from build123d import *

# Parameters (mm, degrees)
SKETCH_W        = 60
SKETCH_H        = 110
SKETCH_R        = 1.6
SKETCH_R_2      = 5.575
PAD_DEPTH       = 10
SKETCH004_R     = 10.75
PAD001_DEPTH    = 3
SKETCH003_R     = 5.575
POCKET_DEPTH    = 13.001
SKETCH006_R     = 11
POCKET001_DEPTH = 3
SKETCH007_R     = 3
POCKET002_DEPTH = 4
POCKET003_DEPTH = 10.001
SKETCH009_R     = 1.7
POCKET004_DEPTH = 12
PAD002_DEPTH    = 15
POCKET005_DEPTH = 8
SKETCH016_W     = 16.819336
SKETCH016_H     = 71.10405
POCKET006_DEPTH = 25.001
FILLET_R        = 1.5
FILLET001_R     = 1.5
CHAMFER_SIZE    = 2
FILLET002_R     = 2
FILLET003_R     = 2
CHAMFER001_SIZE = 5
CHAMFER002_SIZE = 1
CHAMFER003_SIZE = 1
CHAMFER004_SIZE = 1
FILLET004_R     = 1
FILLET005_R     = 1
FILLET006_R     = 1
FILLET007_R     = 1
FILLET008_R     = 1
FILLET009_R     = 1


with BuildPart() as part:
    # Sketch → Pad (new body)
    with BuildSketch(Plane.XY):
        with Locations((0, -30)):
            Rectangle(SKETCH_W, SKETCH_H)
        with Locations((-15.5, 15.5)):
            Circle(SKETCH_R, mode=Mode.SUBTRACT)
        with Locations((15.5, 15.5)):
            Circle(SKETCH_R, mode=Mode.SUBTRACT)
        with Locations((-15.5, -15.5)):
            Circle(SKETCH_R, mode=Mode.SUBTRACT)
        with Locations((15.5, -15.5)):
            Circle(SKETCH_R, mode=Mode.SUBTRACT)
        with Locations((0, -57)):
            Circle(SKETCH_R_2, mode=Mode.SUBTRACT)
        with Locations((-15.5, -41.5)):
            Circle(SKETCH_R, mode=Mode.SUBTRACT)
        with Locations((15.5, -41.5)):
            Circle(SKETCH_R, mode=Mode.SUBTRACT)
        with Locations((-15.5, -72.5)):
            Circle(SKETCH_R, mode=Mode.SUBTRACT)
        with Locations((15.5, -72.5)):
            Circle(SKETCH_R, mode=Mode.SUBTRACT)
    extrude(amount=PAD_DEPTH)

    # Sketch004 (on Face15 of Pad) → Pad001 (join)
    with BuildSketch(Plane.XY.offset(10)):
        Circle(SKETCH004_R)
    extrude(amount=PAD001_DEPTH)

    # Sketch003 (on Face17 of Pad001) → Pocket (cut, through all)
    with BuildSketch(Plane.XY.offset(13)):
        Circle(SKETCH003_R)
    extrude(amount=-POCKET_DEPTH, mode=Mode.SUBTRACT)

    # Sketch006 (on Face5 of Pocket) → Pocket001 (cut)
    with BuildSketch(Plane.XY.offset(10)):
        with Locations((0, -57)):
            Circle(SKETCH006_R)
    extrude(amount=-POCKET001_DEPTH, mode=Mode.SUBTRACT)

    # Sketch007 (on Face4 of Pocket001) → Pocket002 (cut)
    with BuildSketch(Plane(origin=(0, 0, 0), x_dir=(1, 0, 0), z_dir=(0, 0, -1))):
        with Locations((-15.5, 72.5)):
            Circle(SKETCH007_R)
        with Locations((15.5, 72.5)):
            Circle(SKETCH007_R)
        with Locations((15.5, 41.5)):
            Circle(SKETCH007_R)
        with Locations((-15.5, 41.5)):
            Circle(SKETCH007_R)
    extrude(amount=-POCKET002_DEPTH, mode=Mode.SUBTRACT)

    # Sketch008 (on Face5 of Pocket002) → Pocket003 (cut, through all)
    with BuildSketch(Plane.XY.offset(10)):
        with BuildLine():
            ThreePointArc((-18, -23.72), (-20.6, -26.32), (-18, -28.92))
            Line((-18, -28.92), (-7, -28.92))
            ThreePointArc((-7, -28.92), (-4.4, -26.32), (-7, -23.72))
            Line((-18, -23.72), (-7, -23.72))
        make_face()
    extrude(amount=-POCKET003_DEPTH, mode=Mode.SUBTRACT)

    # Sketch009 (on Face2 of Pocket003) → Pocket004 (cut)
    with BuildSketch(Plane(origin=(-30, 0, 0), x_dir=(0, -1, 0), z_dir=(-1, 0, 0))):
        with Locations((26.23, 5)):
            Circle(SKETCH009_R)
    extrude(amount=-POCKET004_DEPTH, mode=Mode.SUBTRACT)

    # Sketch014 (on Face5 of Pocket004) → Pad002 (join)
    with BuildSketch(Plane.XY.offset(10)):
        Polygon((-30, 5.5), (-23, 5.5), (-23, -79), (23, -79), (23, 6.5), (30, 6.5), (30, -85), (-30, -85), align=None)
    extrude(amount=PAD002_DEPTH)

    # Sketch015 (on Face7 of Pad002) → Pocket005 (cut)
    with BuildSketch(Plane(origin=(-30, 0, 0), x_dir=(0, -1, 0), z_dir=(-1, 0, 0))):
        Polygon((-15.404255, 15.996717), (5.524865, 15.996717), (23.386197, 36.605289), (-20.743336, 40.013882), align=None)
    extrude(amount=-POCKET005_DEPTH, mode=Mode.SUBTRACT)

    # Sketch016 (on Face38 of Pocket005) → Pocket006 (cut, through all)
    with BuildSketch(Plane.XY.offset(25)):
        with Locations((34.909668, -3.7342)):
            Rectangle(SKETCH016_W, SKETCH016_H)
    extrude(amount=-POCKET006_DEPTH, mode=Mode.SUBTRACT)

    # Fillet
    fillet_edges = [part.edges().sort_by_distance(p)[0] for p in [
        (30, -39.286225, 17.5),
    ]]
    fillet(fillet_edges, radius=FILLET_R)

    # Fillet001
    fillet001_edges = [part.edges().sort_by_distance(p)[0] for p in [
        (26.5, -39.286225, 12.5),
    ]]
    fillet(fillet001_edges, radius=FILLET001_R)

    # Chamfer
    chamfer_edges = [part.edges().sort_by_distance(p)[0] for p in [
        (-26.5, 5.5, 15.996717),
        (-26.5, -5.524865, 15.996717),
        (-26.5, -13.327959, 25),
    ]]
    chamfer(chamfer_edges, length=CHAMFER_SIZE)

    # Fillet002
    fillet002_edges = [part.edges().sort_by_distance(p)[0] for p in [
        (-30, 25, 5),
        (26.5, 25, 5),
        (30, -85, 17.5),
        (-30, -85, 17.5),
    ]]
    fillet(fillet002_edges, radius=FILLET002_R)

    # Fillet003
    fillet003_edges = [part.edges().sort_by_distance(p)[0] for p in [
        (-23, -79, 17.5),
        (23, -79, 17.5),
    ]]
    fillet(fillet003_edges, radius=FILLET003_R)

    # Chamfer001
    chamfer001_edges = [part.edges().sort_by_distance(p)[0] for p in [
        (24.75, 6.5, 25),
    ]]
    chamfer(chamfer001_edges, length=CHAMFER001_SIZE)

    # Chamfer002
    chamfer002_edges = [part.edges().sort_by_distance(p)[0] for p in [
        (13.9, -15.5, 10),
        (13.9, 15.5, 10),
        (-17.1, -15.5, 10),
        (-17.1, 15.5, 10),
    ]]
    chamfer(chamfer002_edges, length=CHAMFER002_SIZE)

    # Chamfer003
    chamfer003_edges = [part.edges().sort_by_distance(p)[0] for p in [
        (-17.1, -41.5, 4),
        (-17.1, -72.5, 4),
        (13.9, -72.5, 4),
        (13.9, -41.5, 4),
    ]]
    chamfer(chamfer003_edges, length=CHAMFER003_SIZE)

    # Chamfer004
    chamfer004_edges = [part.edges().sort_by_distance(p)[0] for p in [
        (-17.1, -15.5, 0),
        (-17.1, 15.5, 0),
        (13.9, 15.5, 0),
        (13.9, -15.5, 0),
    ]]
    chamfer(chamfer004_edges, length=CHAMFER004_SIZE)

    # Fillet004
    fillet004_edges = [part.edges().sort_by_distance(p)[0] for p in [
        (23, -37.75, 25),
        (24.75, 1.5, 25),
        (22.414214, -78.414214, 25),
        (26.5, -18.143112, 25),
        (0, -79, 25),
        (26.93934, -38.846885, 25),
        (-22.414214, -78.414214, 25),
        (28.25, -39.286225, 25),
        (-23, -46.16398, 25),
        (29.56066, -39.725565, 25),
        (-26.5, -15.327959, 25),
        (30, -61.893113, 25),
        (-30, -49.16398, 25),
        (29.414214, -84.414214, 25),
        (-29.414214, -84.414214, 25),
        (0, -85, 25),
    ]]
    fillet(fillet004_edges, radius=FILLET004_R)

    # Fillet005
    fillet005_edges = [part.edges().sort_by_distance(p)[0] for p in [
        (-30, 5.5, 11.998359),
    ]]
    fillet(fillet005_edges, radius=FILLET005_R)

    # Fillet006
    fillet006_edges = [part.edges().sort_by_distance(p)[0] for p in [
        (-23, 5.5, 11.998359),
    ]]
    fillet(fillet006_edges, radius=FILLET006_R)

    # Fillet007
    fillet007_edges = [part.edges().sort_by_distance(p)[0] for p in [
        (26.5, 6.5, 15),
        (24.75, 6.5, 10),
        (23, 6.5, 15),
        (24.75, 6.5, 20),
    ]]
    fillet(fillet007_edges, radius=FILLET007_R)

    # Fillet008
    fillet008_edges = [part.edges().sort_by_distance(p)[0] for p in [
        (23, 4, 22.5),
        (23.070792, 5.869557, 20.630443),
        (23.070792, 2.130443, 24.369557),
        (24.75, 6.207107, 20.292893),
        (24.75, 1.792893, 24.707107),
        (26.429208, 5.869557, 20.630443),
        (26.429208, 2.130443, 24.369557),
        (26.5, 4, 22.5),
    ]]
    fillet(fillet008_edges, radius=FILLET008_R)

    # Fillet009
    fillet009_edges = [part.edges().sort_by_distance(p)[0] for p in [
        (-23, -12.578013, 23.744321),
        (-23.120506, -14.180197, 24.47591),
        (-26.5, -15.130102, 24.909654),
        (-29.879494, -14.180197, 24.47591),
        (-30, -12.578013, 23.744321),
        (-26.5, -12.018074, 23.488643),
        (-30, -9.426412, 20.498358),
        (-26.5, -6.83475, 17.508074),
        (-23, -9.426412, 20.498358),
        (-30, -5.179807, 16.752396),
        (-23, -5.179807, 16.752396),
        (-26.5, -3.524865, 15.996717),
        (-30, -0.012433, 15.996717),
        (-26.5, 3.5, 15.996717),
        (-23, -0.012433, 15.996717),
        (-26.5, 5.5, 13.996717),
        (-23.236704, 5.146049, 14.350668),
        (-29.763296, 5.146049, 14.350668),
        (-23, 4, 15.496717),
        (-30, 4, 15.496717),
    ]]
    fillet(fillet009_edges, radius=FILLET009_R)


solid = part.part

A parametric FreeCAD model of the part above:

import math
import FreeCAD as App
import Part
import Sketcher

V = App.Vector
Q = App.Units.Quantity


def edges_at(feature, points):
    """Names of the edges that pass closest to the given points."""
    edges = feature.Shape.Edges
    near = lambda p: min(range(len(edges)), key=lambda i: edges[i].distToShape(Part.Vertex(*p))[0])
    return sorted({f"Edge{near(p) + 1}" for p in points})


def add_polygon(sketch, points):
    """Adds a closed chain of lines whose ends are joined by coincident constraints."""
    first, n = sketch.GeometryCount, len(points)
    for a, b in zip(points, points[1:] + points[:1]):
        sketch.addGeometry(Part.LineSegment(App.Vector(*a, 0), App.Vector(*b, 0)), False)
    for i in range(n):
        sketch.addConstraint(Sketcher.Constraint("Coincident", first + i, 2, first + (i + 1) % n, 1))

doc = App.newDocument("Part")
params = doc.addObject("Spreadsheet::Sheet", "Params")
for row, (alias, value) in enumerate([
    ("sketch1_diameter", "3.2 mm"),
    ("sketch1_diameter2", "11.15 mm"),
    ("sketch1_width", "60 mm"),
    ("sketch1_height", "110 mm"),
    ("pad1_length", "10 mm"),
    ("sketch2_diameter", "21.5 mm"),
    ("pad2_length", "3 mm"),
    ("sketch3_diameter", "11.15 mm"),
    ("sketch4_diameter", "22 mm"),
    ("pocket2_length", "3 mm"),
    ("sketch5_diameter", "6 mm"),
    ("pocket3_length", "4 mm"),
    ("sketch6_radius", "2.6 mm"),
    ("sketch6_width", "11 mm"),
    ("sketch7_diameter", "3.4 mm"),
    ("pocket5_length", "12 mm"),
    ("sketch8_width", "7 mm"),
    ("sketch8_width2", "60 mm"),
    ("sketch8_height", "90.5 mm"),
    ("sketch8_height2", "91.5 mm"),
    ("sketch8_height3", "85.5 mm"),
    ("pad3_length", "15 mm"),
    ("pocket6_length", "8 mm"),
    ("fillet_radius", "1.5 mm"),
    ("fillet2_radius", "1.5 mm"),
    ("chamfer_size", "2 mm"),
    ("fillet3_radius", "2 mm"),
    ("fillet4_radius", "2 mm"),
    ("chamfer2_size", "5 mm"),
    ("chamfer3_size", "1 mm"),
    ("chamfer4_size", "1 mm"),
    ("chamfer5_size", "1 mm"),
    ("fillet5_radius", "1 mm"),
    ("fillet6_radius", "1 mm"),
    ("fillet7_radius", "1 mm"),
    ("fillet8_radius", "1 mm"),
    ("fillet9_radius", "1 mm"),
    ("fillet10_radius", "1 mm"),
], start=1):
    params.set(f"A{row}", alias)
    params.set(f"B{row}", "=" + value)
    params.setAlias(f"B{row}", alias)

body = doc.addObject("PartDesign::Body", "Body")

sketch1 = doc.addObject("Sketcher::SketchObject", "Sketch")
body.addObject(sketch1)
sketch1.AttachmentSupport = (doc.XY_Plane, [""])
sketch1.MapMode = "FlatFace"
add_polygon(sketch1, [(-30, 25), (-30, -85), (30, -85), (30, 25)])
sketch1.addGeometry(Part.Circle(V(-15.5, -72.5, 0), V(0, 0, 1), 1.6), False)
sketch1.addGeometry(Part.Circle(V(-15.5, -41.5, 0), V(0, 0, 1), 1.6), False)
sketch1.addGeometry(Part.Circle(V(0, -57, 0), V(0, 0, 1), 5.575), False)
sketch1.addGeometry(Part.Circle(V(15.5, -72.5, 0), V(0, 0, 1), 1.6), False)
sketch1.addGeometry(Part.Circle(V(15.5, -41.5, 0), V(0, 0, 1), 1.6), False)
sketch1.addGeometry(Part.Circle(V(-15.5, -15.5, 0), V(0, 0, 1), 1.6), False)
sketch1.addGeometry(Part.Circle(V(-15.5, 15.5, 0), V(0, 0, 1), 1.6), False)
sketch1.addGeometry(Part.Circle(V(15.5, -15.5, 0), V(0, 0, 1), 1.6), False)
sketch1.addGeometry(Part.Circle(V(15.5, 15.5, 0), V(0, 0, 1), 1.6), False)
sketch1.addConstraint([
    Sketcher.Constraint("Vertical", 0),
    Sketcher.Constraint("Horizontal", 1),
    Sketcher.Constraint("Vertical", 2),
    Sketcher.Constraint("Horizontal", 3),
    Sketcher.Constraint("Equal", 4, 5),
    Sketcher.Constraint("Equal", 5, 7),
    Sketcher.Constraint("Equal", 7, 8),
    Sketcher.Constraint("Equal", 8, 9),
    Sketcher.Constraint("Equal", 9, 10),
    Sketcher.Constraint("Equal", 10, 11),
    Sketcher.Constraint("Equal", 11, 12),
    Sketcher.Constraint("Symmetric", 10, 3, 11, 3, -1, 1),
    Sketcher.Constraint("Symmetric", 9, 3, 12, 3, -1, 1),
    Sketcher.Constraint("Symmetric", 4, 3, 7, 3, -2),
    Sketcher.Constraint("Symmetric", 5, 3, 8, 3, -2),
    Sketcher.Constraint("Symmetric", 9, 3, 11, 3, -2),
    Sketcher.Constraint("PointOnObject", 6, 3, -2),
    Sketcher.Constraint("Vertical", 4, 3, 5, 3),
    Sketcher.Constraint("Vertical", 5, 3, 9, 3),
    Sketcher.Constraint("Diameter", 4, Q("3.2 mm")),
    Sketcher.Constraint("Diameter", 6, Q("11.15 mm")),
    Sketcher.Constraint("DistanceX", 1, 1, 1, 2, Q("60 mm")),
    Sketcher.Constraint("DistanceY", 0, 2, 0, 1, Q("110 mm")),
    Sketcher.Constraint("DistanceY", 6, 3, -1, 1, Q("57 mm")),
    Sketcher.Constraint("DistanceX", 0, 2, -1, 1, Q("30 mm")),
    Sketcher.Constraint("DistanceY", 0, 2, -1, 1, Q("85 mm")),
    Sketcher.Constraint("DistanceY", 4, 3, 5, 3, Q("31 mm")),
    Sketcher.Constraint("DistanceX", 4, 3, 7, 3, Q("31 mm")),
    Sketcher.Constraint("DistanceY", 5, 3, 9, 3, Q("26 mm")),
    Sketcher.Constraint("DistanceY", 9, 3, 10, 3, Q("31 mm")),
])
sketch1.setExpression("Constraints[23]", "Params.sketch1_diameter")
sketch1.setExpression("Constraints[24]", "Params.sketch1_diameter2")
sketch1.setExpression("Constraints[25]", "Params.sketch1_width")
sketch1.setExpression("Constraints[26]", "Params.sketch1_height")
pad1 = doc.addObject("PartDesign::Pad", "Pad")
body.addObject(pad1)
pad1.Profile = sketch1
pad1.setExpression("Length", "Params.pad1_length")

sketch2 = doc.addObject("Sketcher::SketchObject", "Sketch001")
body.addObject(sketch2)
sketch2.AttachmentSupport = (doc.XY_Plane, [""])
sketch2.MapMode = "FlatFace"
sketch2.AttachmentOffset = App.Placement(V(0, 0, 10), App.Rotation())
sketch2.addGeometry(Part.Circle(V(0, 0, 0), V(0, 0, 1), 10.75), False)
sketch2.addConstraint([
    Sketcher.Constraint("Coincident", 0, 3, -1, 1),
    Sketcher.Constraint("Diameter", 0, Q("21.5 mm")),
])
sketch2.setExpression("Constraints[1]", "Params.sketch2_diameter")
pad2 = doc.addObject("PartDesign::Pad", "Pad001")
body.addObject(pad2)
pad2.Profile = sketch2
pad2.setExpression("Length", "Params.pad2_length")

sketch3 = doc.addObject("Sketcher::SketchObject", "Sketch002")
body.addObject(sketch3)
sketch3.AttachmentSupport = (doc.XY_Plane, [""])
sketch3.MapMode = "FlatFace"
sketch3.AttachmentOffset = App.Placement(V(0, 0, 13), App.Rotation())
sketch3.addGeometry(Part.Circle(V(0, 0, 0), V(0, 0, 1), 5.575), False)
sketch3.addConstraint([
    Sketcher.Constraint("Coincident", 0, 3, -1, 1),
    Sketcher.Constraint("Diameter", 0, Q("11.15 mm")),
])
sketch3.setExpression("Constraints[1]", "Params.sketch3_diameter")
pocket1 = doc.addObject("PartDesign::Pocket", "Pocket")
body.addObject(pocket1)
pocket1.Profile = sketch3
pocket1.Type = "ThroughAll"

sketch4 = doc.addObject("Sketcher::SketchObject", "Sketch003")
body.addObject(sketch4)
sketch4.AttachmentSupport = (doc.XY_Plane, [""])
sketch4.MapMode = "FlatFace"
sketch4.AttachmentOffset = App.Placement(V(0, 0, 10), App.Rotation())
sketch4.addGeometry(Part.Circle(V(0, -57, 0), V(0, 0, 1), 11), False)
sketch4.addConstraint([
    Sketcher.Constraint("PointOnObject", 0, 3, -2),
    Sketcher.Constraint("Diameter", 0, Q("22 mm")),
    Sketcher.Constraint("DistanceY", 0, 3, -1, 1, Q("57 mm")),
])
sketch4.setExpression("Constraints[1]", "Params.sketch4_diameter")
pocket2 = doc.addObject("PartDesign::Pocket", "Pocket001")
body.addObject(pocket2)
pocket2.Profile = sketch4
pocket2.setExpression("Length", "Params.pocket2_length")

sketch5 = doc.addObject("Sketcher::SketchObject", "Sketch004")
body.addObject(sketch5)
sketch5.AttachmentSupport = (doc.XY_Plane, [""])
sketch5.MapMode = "FlatFace"
sketch5.addGeometry([
    Part.Circle(V(-15.5, -72.5, 0), V(0, 0, 1), 3),
    Part.Circle(V(15.5, -72.5, 0), V(0, 0, 1), 3),
    Part.Circle(V(15.5, -41.5, 0), V(0, 0, 1), 3),
    Part.Circle(V(-15.5, -41.5, 0), V(0, 0, 1), 3),
], False)
sketch5.addConstraint([
    Sketcher.Constraint("Equal", 0, 1),
    Sketcher.Constraint("Equal", 1, 2),
    Sketcher.Constraint("Equal", 2, 3),
    Sketcher.Constraint("Symmetric", 0, 3, 1, 3, -2),
    Sketcher.Constraint("Symmetric", 2, 3, 3, 3, -2),
    Sketcher.Constraint("Vertical", 1, 3, 2, 3),
    Sketcher.Constraint("Diameter", 0, Q("6 mm")),
    Sketcher.Constraint("DistanceX", 0, 3, 1, 3, Q("31 mm")),
    Sketcher.Constraint("DistanceY", 1, 3, 2, 3, Q("31 mm")),
    Sketcher.Constraint("DistanceY", 0, 3, -1, 1, Q("72.5 mm")),
])
sketch5.setExpression("Constraints[6]", "Params.sketch5_diameter")
pocket3 = doc.addObject("PartDesign::Pocket", "Pocket002")
body.addObject(pocket3)
pocket3.Profile = sketch5
pocket3.setExpression("Length", "Params.pocket3_length")
pocket3.Reversed = True

sketch6 = doc.addObject("Sketcher::SketchObject", "Sketch005")
body.addObject(sketch6)
sketch6.AttachmentSupport = (doc.XY_Plane, [""])
sketch6.MapMode = "FlatFace"
sketch6.AttachmentOffset = App.Placement(V(0, 0, 10), App.Rotation())
sketch6.addGeometry([
    Part.ArcOfCircle(Part.Circle(V(-18, -26.32, 0), V(0, 0, 1), 2.6), math.radians(90), math.radians(270)),
    Part.LineSegment(V(-18, -28.92, 0), V(-7, -28.92, 0)),
    Part.ArcOfCircle(Part.Circle(V(-7, -26.32, 0), V(0, 0, 1), 2.6), math.radians(-90), math.radians(90)),
    Part.LineSegment(V(-7, -23.72, 0), V(-18, -23.72, 0)),
], False)
sketch6.addConstraint([
    Sketcher.Constraint("Tangent", 0, 2, 1, 1),
    Sketcher.Constraint("Tangent", 1, 2, 2, 1),
    Sketcher.Constraint("Tangent", 2, 2, 3, 1),
    Sketcher.Constraint("Tangent", 3, 2, 0, 1),
    Sketcher.Constraint("Horizontal", 1),
    Sketcher.Constraint("Horizontal", 3),
    Sketcher.Constraint("Radius", 0, Q("2.6 mm")),
    Sketcher.Constraint("DistanceX", 1, 1, 1, 2, Q("11 mm")),
    Sketcher.Constraint("DistanceX", 0, 3, -1, 1, Q("18 mm")),
    Sketcher.Constraint("DistanceY", 0, 3, -1, 1, Q("26.32 mm")),
])
sketch6.setExpression("Constraints[6]", "Params.sketch6_radius")
sketch6.setExpression("Constraints[7]", "Params.sketch6_width")
pocket4 = doc.addObject("PartDesign::Pocket", "Pocket003")
body.addObject(pocket4)
pocket4.Profile = sketch6
pocket4.Type = "ThroughAll"

sketch7 = doc.addObject("Sketcher::SketchObject", "Sketch006")
body.addObject(sketch7)
sketch7.AttachmentSupport = (doc.YZ_Plane, [""])
sketch7.MapMode = "FlatFace"
sketch7.AttachmentOffset = App.Placement(V(0, 0, -30), App.Rotation())
sketch7.addGeometry(Part.Circle(V(-26.23, 5, 0), V(0, 0, 1), 1.7), False)
sketch7.addConstraint([
    Sketcher.Constraint("Diameter", 0, Q("3.4 mm")),
    Sketcher.Constraint("DistanceY", -1, 1, 0, 3, Q("5 mm")),
    Sketcher.Constraint("DistanceX", 0, 3, -1, 1, Q("26.23 mm")),
])
sketch7.setExpression("Constraints[0]", "Params.sketch7_diameter")
pocket5 = doc.addObject("PartDesign::Pocket", "Pocket004")
body.addObject(pocket5)
pocket5.Profile = sketch7
pocket5.setExpression("Length", "Params.pocket5_length")
pocket5.Reversed = True

sketch8 = doc.addObject("Sketcher::SketchObject", "Sketch007")
body.addObject(sketch8)
sketch8.AttachmentSupport = (doc.XY_Plane, [""])
sketch8.MapMode = "FlatFace"
sketch8.AttachmentOffset = App.Placement(V(0, 0, 10), App.Rotation())
add_polygon(sketch8, [(-23, 5.5), (-30, 5.5), (-30, -85), (30, -85), (30, 6.5), (23, 6.5), (23, -79), (-23, -79)])
sketch8.addConstraint([
    Sketcher.Constraint("Horizontal", 0),
    Sketcher.Constraint("Vertical", 1),
    Sketcher.Constraint("Horizontal", 2),
    Sketcher.Constraint("Vertical", 3),
    Sketcher.Constraint("Horizontal", 4),
    Sketcher.Constraint("Vertical", 5),
    Sketcher.Constraint("Horizontal", 6),
    Sketcher.Constraint("Vertical", 7),
    Sketcher.Constraint("Equal", 0, 4),
    Sketcher.Constraint("DistanceX", 0, 2, 0, 1, Q("7 mm")),
    Sketcher.Constraint("DistanceX", 2, 1, 2, 2, Q("60 mm")),
    Sketcher.Constraint("DistanceY", 1, 2, 1, 1, Q("90.5 mm")),
    Sketcher.Constraint("DistanceY", 3, 1, 3, 2, Q("91.5 mm")),
    Sketcher.Constraint("DistanceY", 5, 2, 5, 1, Q("85.5 mm")),
    Sketcher.Constraint("DistanceX", 0, 2, -1, 1, Q("30 mm")),
    Sketcher.Constraint("DistanceY", 1, 2, -1, 1, Q("85 mm")),
])
sketch8.setExpression("Constraints[17]", "Params.sketch8_width")
sketch8.setExpression("Constraints[18]", "Params.sketch8_width2")
sketch8.setExpression("Constraints[19]", "Params.sketch8_height")
sketch8.setExpression("Constraints[20]", "Params.sketch8_height2")
sketch8.setExpression("Constraints[21]", "Params.sketch8_height3")
pad3 = doc.addObject("PartDesign::Pad", "Pad002")
body.addObject(pad3)
pad3.Profile = sketch8
pad3.setExpression("Length", "Params.pad3_length")

sketch9 = doc.addObject("Sketcher::SketchObject", "Sketch008")
body.addObject(sketch9)
sketch9.AttachmentSupport = (doc.YZ_Plane, [""])
sketch9.MapMode = "FlatFace"
sketch9.AttachmentOffset = App.Placement(V(0, 0, -30), App.Rotation())
add_polygon(sketch9, [(15.404255, 15.996717), (-5.524865, 15.996717), (-23.386197, 36.605289), (20.743336, 40.013882)])
sketch9.addConstraint([
    Sketcher.Constraint("Horizontal", 0),
    Sketcher.Constraint("DistanceX", 0, 2, 0, 1, Q("20.92912 mm")),
    Sketcher.Constraint("DistanceX", 0, 2, 2, 2, Q("26.268201 mm")),
    Sketcher.Constraint("Distance", 2, Q("44.260978 mm")),
    Sketcher.Constraint("DistanceY", -1, 1, 1, 2, Q("36.605289 mm")),
    Sketcher.Constraint("DistanceX", 1, 2, 0, 2, Q("17.861332 mm")),
    Sketcher.Constraint("DistanceY", 0, 2, 1, 2, Q("20.608572 mm")),
    Sketcher.Constraint("DistanceX", 0, 2, -1, 1, Q("5.524865 mm")),
])
pocket6 = doc.addObject("PartDesign::Pocket", "Pocket005")
body.addObject(pocket6)
pocket6.Profile = sketch9
pocket6.setExpression("Length", "Params.pocket6_length")
pocket6.Reversed = True

sketch10 = doc.addObject("Sketcher::SketchObject", "Sketch009")
body.addObject(sketch10)
sketch10.AttachmentSupport = (doc.XY_Plane, [""])
sketch10.MapMode = "FlatFace"
sketch10.AttachmentOffset = App.Placement(V(0, 0, 25), App.Rotation())
add_polygon(sketch10, [(26.5, 31.817825), (26.5, -39.286225), (43.319336, -39.286225), (43.319336, 31.817825)])
sketch10.addConstraint([
    Sketcher.Constraint("Vertical", 0),
    Sketcher.Constraint("Horizontal", 1),
    Sketcher.Constraint("Vertical", 2),
    Sketcher.Constraint("Horizontal", 3),
    Sketcher.Constraint("DistanceX", -1, 1, 0, 2, Q("26.5 mm")),
    Sketcher.Constraint("DistanceY", 0, 2, 0, 1, Q("71.10405 mm")),
    Sketcher.Constraint("DistanceX", 1, 1, 1, 2, Q("16.819336 mm")),
    Sketcher.Constraint("DistanceY", 0, 2, -1, 1, Q("39.286225 mm")),
])
pocket7 = doc.addObject("PartDesign::Pocket", "Pocket006")
body.addObject(pocket7)
pocket7.Profile = sketch10
pocket7.Type = "ThroughAll"
doc.recompute()

fillet = doc.addObject("PartDesign::Fillet", "Fillet")
body.addObject(fillet)
fillet.Base = (pocket7, edges_at(pocket7, [(30, -39.286, 12.5)]))
fillet.setExpression("Radius", "Params.fillet_radius")
doc.recompute()

fillet2 = doc.addObject("PartDesign::Fillet", "Fillet001")
body.addObject(fillet2)
fillet2.Base = (fillet, edges_at(fillet, [(26.5, -39.286, 12.5)]))
fillet2.setExpression("Radius", "Params.fillet2_radius")
doc.recompute()

chamfer = doc.addObject("PartDesign::Chamfer", "Chamfer")
body.addObject(chamfer)
chamfer.Base = (fillet2, edges_at(fillet2, [(-26.5, 5.5, 15.997), (-26.5, -5.525, 15.997), (-26.5, -13.328, 25)]))
chamfer.setExpression("Size", "Params.chamfer_size")
doc.recompute()

fillet3 = doc.addObject("PartDesign::Fillet", "Fillet002")
body.addObject(fillet3)
fillet3.Base = (chamfer, edges_at(chamfer, [
    (-30, 25, 5),
    (26.5, 25, 5),
    (30, -85, 12.5),
    (-30, -85, 12.5),
]))
fillet3.setExpression("Radius", "Params.fillet3_radius")
doc.recompute()

fillet4 = doc.addObject("PartDesign::Fillet", "Fillet003")
body.addObject(fillet4)
fillet4.Base = (fillet3, edges_at(fillet3, [(-23, -79, 17.5), (23, -79, 17.5)]))
fillet4.setExpression("Radius", "Params.fillet4_radius")
doc.recompute()

chamfer2 = doc.addObject("PartDesign::Chamfer", "Chamfer001")
body.addObject(chamfer2)
chamfer2.Base = (fillet4, edges_at(fillet4, [(24.75, 6.5, 25)]))
chamfer2.setExpression("Size", "Params.chamfer2_size")
doc.recompute()

chamfer3 = doc.addObject("PartDesign::Chamfer", "Chamfer002")
body.addObject(chamfer3)
chamfer3.Base = (chamfer2, edges_at(chamfer2, [
    (13.9, -15.5, 10),
    (13.9, 15.5, 10),
    (-17.1, -15.5, 10),
    (-17.1, 15.5, 10),
]))
chamfer3.setExpression("Size", "Params.chamfer3_size")
doc.recompute()

chamfer4 = doc.addObject("PartDesign::Chamfer", "Chamfer003")
body.addObject(chamfer4)
chamfer4.Base = (chamfer3, edges_at(chamfer3, [
    (-17.1, -41.5, 4),
    (-17.1, -72.5, 4),
    (13.9, -72.5, 4),
    (13.9, -41.5, 4),
]))
chamfer4.setExpression("Size", "Params.chamfer4_size")
doc.recompute()

chamfer5 = doc.addObject("PartDesign::Chamfer", "Chamfer004")
body.addObject(chamfer5)
chamfer5.Base = (chamfer4, edges_at(chamfer4, [
    (-17.1, -15.5, 0),
    (-17.1, 15.5, 0),
    (13.9, 15.5, 0),
    (13.9, -15.5, 0),
]))
chamfer5.setExpression("Size", "Params.chamfer5_size")
doc.recompute()

fillet5 = doc.addObject("PartDesign::Fillet", "Fillet004")
body.addObject(fillet5)
fillet5.Base = (chamfer5, edges_at(chamfer5, [
    (23, -37.75, 25),
    (24.75, 1.5, 25),
    (22.414, -78.414, 25),
    (26.5, -18.143, 25),
    (0, -79, 25),
    (26.939, -38.847, 25),
    (-22.414, -78.414, 25),
    (28.25, -39.286, 25),
    (-23, -46.164, 25),
    (29.561, -39.726, 25),
    (-26.5, -15.328, 25),
    (30, -61.893, 25),
    (-30, -49.164, 25),
    (29.414, -84.414, 25),
    (-29.414, -84.414, 25),
    (0, -85, 25),
]))
fillet5.setExpression("Radius", "Params.fillet5_radius")
doc.recompute()

fillet6 = doc.addObject("PartDesign::Fillet", "Fillet005")
body.addObject(fillet6)
fillet6.Base = (fillet5, edges_at(fillet5, [(-30, 5.5, 11.998)]))
fillet6.setExpression("Radius", "Params.fillet6_radius")
doc.recompute()

fillet7 = doc.addObject("PartDesign::Fillet", "Fillet006")
body.addObject(fillet7)
fillet7.Base = (fillet6, edges_at(fillet6, [(-23, 5.5, 11.998)]))
fillet7.setExpression("Radius", "Params.fillet7_radius")
doc.recompute()

fillet8 = doc.addObject("PartDesign::Fillet", "Fillet007")
body.addObject(fillet8)
fillet8.Base = (fillet7, edges_at(fillet7, [
    (26.5, 6.5, 15),
    (24.75, 6.5, 10),
    (23, 6.5, 15),
    (24.75, 6.5, 20),
]))
fillet8.setExpression("Radius", "Params.fillet8_radius")
doc.recompute()

fillet9 = doc.addObject("PartDesign::Fillet", "Fillet008")
body.addObject(fillet9)
fillet9.Base = (fillet8, edges_at(fillet8, [
    (23, 4, 22.5),
    (23.071, 5.87, 20.63),
    (23.071, 2.13, 24.37),
    (24.75, 6.207, 20.293),
    (24.75, 1.793, 24.707),
    (26.429, 5.87, 20.63),
    (26.429, 2.13, 24.37),
    (26.5, 4, 22.5),
]))
fillet9.setExpression("Radius", "Params.fillet9_radius")
doc.recompute()

fillet10 = doc.addObject("PartDesign::Fillet", "Fillet009")
body.addObject(fillet10)
fillet10.Base = (fillet9, edges_at(fillet9, [
    (-23, -12.578, 23.744),
    (-23.121, -14.18, 24.476),
    (-26.5, -15.13, 24.91),
    (-29.879, -14.18, 24.476),
    (-30, -12.578, 23.744),
    (-26.5, -12.018, 23.489),
    (-30, -9.426, 20.498),
    (-26.5, -6.835, 17.508),
    (-23, -9.426, 20.498),
    (-30, -5.18, 16.752),
    (-23, -5.18, 16.752),
    (-26.5, -3.525, 15.997),
    (-30, -0.012, 15.997),
    (-26.5, 3.5, 15.997),
    (-23, -0.012, 15.997),
    (-26.5, 5.5, 13.997),
    (-23.237, 5.146, 14.351),
    (-29.763, 5.146, 14.351),
    (-23, 4, 15.497),
    (-30, 4, 15.497),
]))
fillet10.setExpression("Radius", "Params.fillet10_radius")

doc.recompute()
